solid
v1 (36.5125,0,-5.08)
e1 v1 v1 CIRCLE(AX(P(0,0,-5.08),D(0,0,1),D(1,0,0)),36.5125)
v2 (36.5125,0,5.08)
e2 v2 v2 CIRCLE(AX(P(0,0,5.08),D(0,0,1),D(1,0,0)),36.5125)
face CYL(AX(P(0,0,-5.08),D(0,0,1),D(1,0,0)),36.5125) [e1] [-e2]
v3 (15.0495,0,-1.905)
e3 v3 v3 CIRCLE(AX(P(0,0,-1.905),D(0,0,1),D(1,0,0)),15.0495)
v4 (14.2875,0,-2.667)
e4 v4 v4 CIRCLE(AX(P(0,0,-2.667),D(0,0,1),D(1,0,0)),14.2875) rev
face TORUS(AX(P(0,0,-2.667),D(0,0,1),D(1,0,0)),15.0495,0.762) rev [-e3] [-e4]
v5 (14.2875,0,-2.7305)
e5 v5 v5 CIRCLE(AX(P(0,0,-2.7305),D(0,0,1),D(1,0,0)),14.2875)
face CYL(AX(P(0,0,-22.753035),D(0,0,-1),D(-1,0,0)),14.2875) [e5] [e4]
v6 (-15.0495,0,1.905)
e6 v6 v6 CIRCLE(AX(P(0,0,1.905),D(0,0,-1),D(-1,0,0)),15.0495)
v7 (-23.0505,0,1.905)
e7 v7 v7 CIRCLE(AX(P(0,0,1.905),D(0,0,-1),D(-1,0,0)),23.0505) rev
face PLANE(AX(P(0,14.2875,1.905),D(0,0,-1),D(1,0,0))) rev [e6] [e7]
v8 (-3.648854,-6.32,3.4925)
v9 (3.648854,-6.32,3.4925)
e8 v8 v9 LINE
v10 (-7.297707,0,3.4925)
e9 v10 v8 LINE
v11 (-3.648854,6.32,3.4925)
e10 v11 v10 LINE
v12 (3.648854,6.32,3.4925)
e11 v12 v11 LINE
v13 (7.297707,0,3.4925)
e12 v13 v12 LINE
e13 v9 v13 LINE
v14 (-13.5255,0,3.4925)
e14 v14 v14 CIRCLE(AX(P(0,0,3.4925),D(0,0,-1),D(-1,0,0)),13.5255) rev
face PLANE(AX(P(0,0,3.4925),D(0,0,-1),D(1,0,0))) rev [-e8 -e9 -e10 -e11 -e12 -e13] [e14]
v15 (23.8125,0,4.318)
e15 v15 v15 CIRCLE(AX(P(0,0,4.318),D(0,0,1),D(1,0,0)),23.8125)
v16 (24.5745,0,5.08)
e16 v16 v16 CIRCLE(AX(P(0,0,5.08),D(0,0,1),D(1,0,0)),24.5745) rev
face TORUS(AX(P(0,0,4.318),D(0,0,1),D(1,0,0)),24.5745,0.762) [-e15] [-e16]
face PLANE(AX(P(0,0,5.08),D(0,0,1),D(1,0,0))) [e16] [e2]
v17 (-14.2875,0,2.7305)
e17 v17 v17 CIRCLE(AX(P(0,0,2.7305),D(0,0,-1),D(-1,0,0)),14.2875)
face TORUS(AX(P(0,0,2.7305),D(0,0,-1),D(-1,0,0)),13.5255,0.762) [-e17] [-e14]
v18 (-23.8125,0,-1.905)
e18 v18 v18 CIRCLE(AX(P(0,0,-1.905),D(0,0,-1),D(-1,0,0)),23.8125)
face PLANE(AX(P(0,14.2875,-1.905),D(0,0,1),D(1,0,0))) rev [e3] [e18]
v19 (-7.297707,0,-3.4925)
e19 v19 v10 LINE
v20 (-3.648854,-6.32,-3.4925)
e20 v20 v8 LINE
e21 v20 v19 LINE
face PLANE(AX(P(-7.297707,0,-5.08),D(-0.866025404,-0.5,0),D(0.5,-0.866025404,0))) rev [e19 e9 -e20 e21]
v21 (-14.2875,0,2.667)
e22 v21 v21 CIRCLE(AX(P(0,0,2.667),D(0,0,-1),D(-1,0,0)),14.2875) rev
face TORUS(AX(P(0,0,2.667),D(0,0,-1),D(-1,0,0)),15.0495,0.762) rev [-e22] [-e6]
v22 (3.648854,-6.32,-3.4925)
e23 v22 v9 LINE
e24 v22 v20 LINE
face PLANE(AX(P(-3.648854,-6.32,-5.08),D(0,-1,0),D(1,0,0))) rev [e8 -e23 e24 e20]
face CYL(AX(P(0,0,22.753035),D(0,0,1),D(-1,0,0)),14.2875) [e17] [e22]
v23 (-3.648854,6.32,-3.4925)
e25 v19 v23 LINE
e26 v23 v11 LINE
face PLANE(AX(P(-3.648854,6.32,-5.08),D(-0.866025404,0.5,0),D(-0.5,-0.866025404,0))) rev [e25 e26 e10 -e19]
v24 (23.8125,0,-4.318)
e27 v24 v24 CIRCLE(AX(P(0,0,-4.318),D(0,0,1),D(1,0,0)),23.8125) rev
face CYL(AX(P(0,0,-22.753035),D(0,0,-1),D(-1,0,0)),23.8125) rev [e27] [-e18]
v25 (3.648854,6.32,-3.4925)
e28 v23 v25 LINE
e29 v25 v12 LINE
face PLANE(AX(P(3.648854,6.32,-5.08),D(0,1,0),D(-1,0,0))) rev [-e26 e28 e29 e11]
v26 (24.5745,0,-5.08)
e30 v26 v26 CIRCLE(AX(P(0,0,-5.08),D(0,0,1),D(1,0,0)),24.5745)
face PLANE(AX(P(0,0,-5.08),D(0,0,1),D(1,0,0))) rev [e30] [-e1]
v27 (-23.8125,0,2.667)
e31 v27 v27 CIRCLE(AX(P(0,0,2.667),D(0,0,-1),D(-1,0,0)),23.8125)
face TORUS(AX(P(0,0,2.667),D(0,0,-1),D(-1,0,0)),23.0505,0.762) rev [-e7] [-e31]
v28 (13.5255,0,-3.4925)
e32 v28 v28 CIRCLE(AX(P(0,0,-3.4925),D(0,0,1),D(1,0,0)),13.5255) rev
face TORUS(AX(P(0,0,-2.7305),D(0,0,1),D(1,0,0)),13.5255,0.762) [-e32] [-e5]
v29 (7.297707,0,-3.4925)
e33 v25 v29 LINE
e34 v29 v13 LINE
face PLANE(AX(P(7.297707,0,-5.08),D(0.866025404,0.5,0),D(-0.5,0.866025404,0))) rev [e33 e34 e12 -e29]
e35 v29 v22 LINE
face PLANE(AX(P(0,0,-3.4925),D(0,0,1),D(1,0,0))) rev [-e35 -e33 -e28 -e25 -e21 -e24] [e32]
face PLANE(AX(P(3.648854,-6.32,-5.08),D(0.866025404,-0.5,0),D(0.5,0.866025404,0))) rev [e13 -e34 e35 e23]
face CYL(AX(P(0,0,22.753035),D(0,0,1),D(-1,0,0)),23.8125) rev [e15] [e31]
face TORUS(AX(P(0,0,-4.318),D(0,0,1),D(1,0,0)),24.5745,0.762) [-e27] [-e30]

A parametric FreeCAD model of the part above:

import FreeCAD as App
import Part
import Sketcher
Q = App.Units.Quantity


def edges_at(feature, points):
    """Names of the edges that pass closest to the given points."""
    edges = feature.Shape.Edges
    near = lambda p: min(range(len(edges)), key=lambda i: edges[i].distToShape(Part.Vertex(*p))[0])
    return sorted({f"Edge{near(p) + 1}" for p in points})

doc = App.newDocument("Part")
body = doc.addObject("PartDesign::Body", "Body")

# Sketch on XY plane
sketch1 = body.newObject("Sketcher::SketchObject", "Sketch")
sketch1.AttachmentSupport = (doc.getObject("XY_Plane"), [""])
sketch1.MapMode = "FlatFace"
sketch1.addGeometry(Part.Circle(App.Vector(0, 0, 0), App.Vector(0, 0, 1), 37), False)
sketch1.addConstraint(Sketcher.Constraint("Coincident", 0, 3, -1, 1))
sketch1.addConstraint(Sketcher.Constraint("Diameter", 0, Q("2.875 in")))
pad1 = body.newObject("PartDesign::Pad", "Pad")
pad1.Profile = sketch1
pad1.Type = "TwoLengths"
pad1.Length = Q("0.2 in")
pad1.Length2 = Q("0.2 in")

# Sketch on XY plane
sketch2 = body.newObject("Sketcher::SketchObject", "Sketch001")
sketch2.AttachmentSupport = (doc.getObject("XY_Plane"), [""])
sketch2.MapMode = "FlatFace"
sketch2.AttachmentOffset = App.Placement(App.Vector(0, 0, 0.2 * 25.4), App.Rotation())
sketch2.addGeometry(Part.LineSegment(App.Vector(4, 6, 0), App.Vector(-4, 6, 0)), False)
sketch2.addGeometry(Part.LineSegment(App.Vector(-4, 6, 0), App.Vector(-7, 0, 0)), False)
sketch2.addGeometry(Part.LineSegment(App.Vector(-7, 0, 0), App.Vector(-4, -6, 0)), False)
sketch2.addGeometry(Part.LineSegment(App.Vector(-4, -6, 0), App.Vector(4, -6, 0)), False)
sketch2.addGeometry(Part.LineSegment(App.Vector(4, -6, 0), App.Vector(7, 0, 0)), False)
sketch2.addGeometry(Part.LineSegment(App.Vector(7, 0, 0), App.Vector(4, 6, 0)), False)
sketch2.addConstraint(Sketcher.Constraint("Coincident", 0, 2, 1, 1))
sketch2.addConstraint(Sketcher.Constraint("Coincident", 1, 2, 2, 1))
sketch2.addConstraint(Sketcher.Constraint("Coincident", 2, 2, 3, 1))
sketch2.addConstraint(Sketcher.Constraint("Coincident", 3, 2, 4, 1))
sketch2.addConstraint(Sketcher.Constraint("Coincident", 4, 2, 5, 1))
sketch2.addConstraint(Sketcher.Constraint("Coincident", 5, 2, 0, 1))
sketch2.addConstraint(Sketcher.Constraint("Horizontal", 0))
sketch2.addConstraint(Sketcher.Constraint("Horizontal", 3))
sketch2.addConstraint(Sketcher.Constraint("Symmetric", 0, 2, 3, 2, -1, 1))
sketch2.addConstraint(Sketcher.Constraint("Symmetric", 1, 2, 4, 2, -1, 1))
sketch2.addConstraint(Sketcher.Constraint("PointOnObject", 1, 2, -1))
sketch2.addConstraint(Sketcher.Constraint("Parallel", 2, 5))
sketch2.addConstraint(Sketcher.Constraint("Vertical", 0, 2, 2, 2))
sketch2.addConstraint(Sketcher.Constraint("Angle", 1, Q("-120 deg")))
sketch2.addConstraint(Sketcher.Constraint("DistanceY", -1, 1, 0, 2, Q("6.32 mm")))
sketch2.addConstraint(Sketcher.Constraint("DistanceX", 0, 2, 0, 1, Q("7.297707 mm")))
pocket1 = body.newObject("PartDesign::Pocket", "Pocket")
pocket1.Profile = sketch2
pocket1.Type = "ThroughAll"

# Sketch on YZ plane
sketch3 = body.newObject("Sketcher::SketchObject", "Sketch002")
sketch3.AttachmentSupport = (doc.getObject("YZ_Plane"), [""])
sketch3.MapMode = "FlatFace"
sketch3.addGeometry(Part.LineSegment(App.Vector(14.3, -1.9, 0), App.Vector(14.3, -3.5, 0)), False)
sketch3.addGeometry(Part.LineSegment(App.Vector(14.3, -3.5, 0), App.Vector(0, -3.5, 0)), False)
sketch3.addGeometry(Part.LineSegment(App.Vector(0, -3.5, 0), App.Vector(0, -5.1, 0)), False)
sketch3.addGeometry(Part.LineSegment(App.Vector(0, -5.1, 0), App.Vector(23.8, -5.1, 0)), False)
sketch3.addGeometry(Part.LineSegment(App.Vector(23.8, -5.1, 0), App.Vector(23.8, -1.9, 0)), False)
sketch3.addGeometry(Part.LineSegment(App.Vector(23.8, -1.9, 0), App.Vector(14.3, -1.9, 0)), False)
sketch3.addConstraint(Sketcher.Constraint("Coincident", 0, 2, 1, 1))
sketch3.addConstraint(Sketcher.Constraint("Coincident", 1, 2, 2, 1))
sketch3.addConstraint(Sketcher.Constraint("Coincident", 2, 2, 3, 1))
sketch3.addConstraint(Sketcher.Constraint("Coincident", 3, 2, 4, 1))
sketch3.addConstraint(Sketcher.Constraint("Coincident", 4, 2, 5, 1))
sketch3.addConstraint(Sketcher.Constraint("Coincident", 5, 2, 0, 1))
sketch3.addConstraint(Sketcher.Constraint("Vertical", 0))
sketch3.addConstraint(Sketcher.Constraint("Horizontal", 1))
sketch3.addConstraint(Sketcher.Constraint("Vertical", 2))
sketch3.addConstraint(Sketcher.Constraint("Horizontal", 3))
sketch3.addConstraint(Sketcher.Constraint("Vertical", 4))
sketch3.addConstraint(Sketcher.Constraint("Horizontal", 5))
sketch3.addConstraint(Sketcher.Constraint("PointOnObject", 1, 2, -2))
sketch3.addConstraint(Sketcher.Constraint("Equal", 0, 2))
sketch3.addConstraint(Sketcher.Constraint("DistanceY", 2, 2, -1, 1, Q("0.2 in")))
sketch3.addConstraint(Sketcher.Constraint("DistanceX", 1, 2, 1, 1, Q("0.5625 in")))
sketch3.addConstraint(Sketcher.Constraint("DistanceX", 3, 1, 3, 2, Q("0.9375 in")))
sketch3.addConstraint(Sketcher.Constraint("DistanceY", 0, 2, 0, 1, Q("0.0625 in")))
groove = body.newObject("PartDesign::Groove", "Groove")
groove.Profile = sketch3
groove.ReferenceAxis = (sketch3, ["V_Axis"])
groove.Angle = 360
doc.recompute()

fillet = body.newObject("PartDesign::Fillet", "Fillet")
fillet.Base = (groove, edges_at(groove, [(23.812, 0, -5.08), (14.287, 0, -1.905), (14.287, 0, -3.493)]))
fillet.Radius = Q("0.03 in")
doc.recompute()

mirrored = body.newObject("PartDesign::Mirrored", "Mirrored")
mirrored.Originals = [groove]
mirrored.MirrorPlane = (doc.getObject("XY_Plane"), [""])
body.Tip = mirrored
doc.recompute()

fillet2 = body.newObject("PartDesign::Fillet", "Fillet001")
fillet2.Base = (mirrored, edges_at(mirrored, [
    (14.287, 0, 3.493),
    (23.812, 0, 1.905),
    (23.812, 0, 5.08),
    (14.287, 0, 1.905),
]))
fillet2.Radius = Q("0.03 in")

doc.recompute()
